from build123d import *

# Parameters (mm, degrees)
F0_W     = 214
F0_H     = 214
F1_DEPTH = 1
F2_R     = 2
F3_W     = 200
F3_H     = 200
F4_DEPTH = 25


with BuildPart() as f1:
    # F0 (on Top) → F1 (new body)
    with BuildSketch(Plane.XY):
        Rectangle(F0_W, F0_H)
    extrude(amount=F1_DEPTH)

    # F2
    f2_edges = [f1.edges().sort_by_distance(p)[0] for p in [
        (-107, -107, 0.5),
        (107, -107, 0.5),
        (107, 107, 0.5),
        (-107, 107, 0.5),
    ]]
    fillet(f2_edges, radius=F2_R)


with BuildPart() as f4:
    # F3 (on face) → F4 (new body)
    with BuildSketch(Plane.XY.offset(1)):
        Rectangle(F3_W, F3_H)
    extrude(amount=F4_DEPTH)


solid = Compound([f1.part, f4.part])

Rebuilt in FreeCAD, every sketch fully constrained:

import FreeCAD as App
import Part
import Sketcher
from FreeCAD import Vector
Q = App.Units.Quantity


def edges_at(feature, points):
    """Names of the edges that pass closest to the given points."""
    edges = feature.Shape.Edges
    near = lambda p: min(range(len(edges)), key=lambda i: edges[i].distToShape(Part.Vertex(*p))[0])
    return sorted({f"Edge{near(p) + 1}" for p in points})

doc = App.newDocument("Part")
body = doc.addObject("PartDesign::Body", "Body")

sketch1 = body.newObject("Sketcher::SketchObject", "Sketch")
sketch1.AttachmentSupport = (doc.getObject("XY_Plane"), [""])
sketch1.MapMode = "FlatFace"
sketch1.addGeometry([
    Part.LineSegment(Vector(-107, 107, 0), Vector(-107, -107, 0)),
    Part.LineSegment(Vector(-107, -107, 0), Vector(107, -107, 0)),
    Part.LineSegment(Vector(107, -107, 0), Vector(107, 107, 0)),
    Part.LineSegment(Vector(107, 107, 0), Vector(-107, 107, 0)),
], False)
sketch1.addConstraint([
    Sketcher.Constraint("Coincident", 0, 2, 1, 1),
    Sketcher.Constraint("Coincident", 1, 2, 2, 1),
    Sketcher.Constraint("Coincident", 2, 2, 3, 1),
    Sketcher.Constraint("Coincident", 3, 2, 0, 1),
    Sketcher.Constraint("Vertical", 0),
    Sketcher.Constraint("Horizontal", 1),
    Sketcher.Constraint("Vertical", 2),
    Sketcher.Constraint("Horizontal", 3),
    Sketcher.Constraint("Symmetric", 0, 2, 2, 2, -1, 1),
    Sketcher.Constraint("Equal", 3, 0),
    Sketcher.Constraint("DistanceX", 1, 1, 1, 2, Q("214 mm")),
])
pad1 = body.newObject("PartDesign::Pad", "Pad")
pad1.Profile = sketch1
pad1.Length = 1
doc.recompute()

fillet = body.newObject("PartDesign::Fillet", "Fillet")
fillet.Base = (pad1, edges_at(pad1, [
    (-107, -107, 0.5),
    (107, -107, 0.5),
    (107, 107, 0.5),
    (-107, 107, 0.5),
]))
fillet.Radius = 2
body2 = doc.addObject("PartDesign::Body", "Body001")

sketch2 = body2.newObject("Sketcher::SketchObject", "Sketch001")
sketch2.AttachmentSupport = (doc.getObject("XY_Plane001"), [""])
sketch2.MapMode = "FlatFace"
sketch2.AttachmentOffset = App.Placement(Vector(0, 0, 1), App.Rotation())
sketch2.addGeometry([
    Part.LineSegment(Vector(-100, 100, 0), Vector(-100, -100, 0)),
    Part.LineSegment(Vector(-100, -100, 0), Vector(100, -100, 0)),
    Part.LineSegment(Vector(100, -100, 0), Vector(100, 100, 0)),
    Part.LineSegment(Vector(100, 100, 0), Vector(-100, 100, 0)),
], False)
sketch2.addConstraint([
    Sketcher.Constraint("Coincident", 0, 2, 1, 1),
    Sketcher.Constraint("Coincident", 1, 2, 2, 1),
    Sketcher.Constraint("Coincident", 2, 2, 3, 1),
    Sketcher.Constraint("Coincident", 3, 2, 0, 1),
    Sketcher.Constraint("Vertical", 0),
    Sketcher.Constraint("Horizontal", 1),
    Sketcher.Constraint("Vertical", 2),
    Sketcher.Constraint("Horizontal", 3),
    Sketcher.Constraint("Symmetric", 0, 2, 2, 2, -1, 1),
    Sketcher.Constraint("Equal", 3, 0),
    Sketcher.Constraint("DistanceX", 1, 1, 1, 2, Q("200 mm")),
])
pad2 = body2.newObject("PartDesign::Pad", "Pad001")
pad2.Profile = sketch2
pad2.Length = 25

doc.recompute()
